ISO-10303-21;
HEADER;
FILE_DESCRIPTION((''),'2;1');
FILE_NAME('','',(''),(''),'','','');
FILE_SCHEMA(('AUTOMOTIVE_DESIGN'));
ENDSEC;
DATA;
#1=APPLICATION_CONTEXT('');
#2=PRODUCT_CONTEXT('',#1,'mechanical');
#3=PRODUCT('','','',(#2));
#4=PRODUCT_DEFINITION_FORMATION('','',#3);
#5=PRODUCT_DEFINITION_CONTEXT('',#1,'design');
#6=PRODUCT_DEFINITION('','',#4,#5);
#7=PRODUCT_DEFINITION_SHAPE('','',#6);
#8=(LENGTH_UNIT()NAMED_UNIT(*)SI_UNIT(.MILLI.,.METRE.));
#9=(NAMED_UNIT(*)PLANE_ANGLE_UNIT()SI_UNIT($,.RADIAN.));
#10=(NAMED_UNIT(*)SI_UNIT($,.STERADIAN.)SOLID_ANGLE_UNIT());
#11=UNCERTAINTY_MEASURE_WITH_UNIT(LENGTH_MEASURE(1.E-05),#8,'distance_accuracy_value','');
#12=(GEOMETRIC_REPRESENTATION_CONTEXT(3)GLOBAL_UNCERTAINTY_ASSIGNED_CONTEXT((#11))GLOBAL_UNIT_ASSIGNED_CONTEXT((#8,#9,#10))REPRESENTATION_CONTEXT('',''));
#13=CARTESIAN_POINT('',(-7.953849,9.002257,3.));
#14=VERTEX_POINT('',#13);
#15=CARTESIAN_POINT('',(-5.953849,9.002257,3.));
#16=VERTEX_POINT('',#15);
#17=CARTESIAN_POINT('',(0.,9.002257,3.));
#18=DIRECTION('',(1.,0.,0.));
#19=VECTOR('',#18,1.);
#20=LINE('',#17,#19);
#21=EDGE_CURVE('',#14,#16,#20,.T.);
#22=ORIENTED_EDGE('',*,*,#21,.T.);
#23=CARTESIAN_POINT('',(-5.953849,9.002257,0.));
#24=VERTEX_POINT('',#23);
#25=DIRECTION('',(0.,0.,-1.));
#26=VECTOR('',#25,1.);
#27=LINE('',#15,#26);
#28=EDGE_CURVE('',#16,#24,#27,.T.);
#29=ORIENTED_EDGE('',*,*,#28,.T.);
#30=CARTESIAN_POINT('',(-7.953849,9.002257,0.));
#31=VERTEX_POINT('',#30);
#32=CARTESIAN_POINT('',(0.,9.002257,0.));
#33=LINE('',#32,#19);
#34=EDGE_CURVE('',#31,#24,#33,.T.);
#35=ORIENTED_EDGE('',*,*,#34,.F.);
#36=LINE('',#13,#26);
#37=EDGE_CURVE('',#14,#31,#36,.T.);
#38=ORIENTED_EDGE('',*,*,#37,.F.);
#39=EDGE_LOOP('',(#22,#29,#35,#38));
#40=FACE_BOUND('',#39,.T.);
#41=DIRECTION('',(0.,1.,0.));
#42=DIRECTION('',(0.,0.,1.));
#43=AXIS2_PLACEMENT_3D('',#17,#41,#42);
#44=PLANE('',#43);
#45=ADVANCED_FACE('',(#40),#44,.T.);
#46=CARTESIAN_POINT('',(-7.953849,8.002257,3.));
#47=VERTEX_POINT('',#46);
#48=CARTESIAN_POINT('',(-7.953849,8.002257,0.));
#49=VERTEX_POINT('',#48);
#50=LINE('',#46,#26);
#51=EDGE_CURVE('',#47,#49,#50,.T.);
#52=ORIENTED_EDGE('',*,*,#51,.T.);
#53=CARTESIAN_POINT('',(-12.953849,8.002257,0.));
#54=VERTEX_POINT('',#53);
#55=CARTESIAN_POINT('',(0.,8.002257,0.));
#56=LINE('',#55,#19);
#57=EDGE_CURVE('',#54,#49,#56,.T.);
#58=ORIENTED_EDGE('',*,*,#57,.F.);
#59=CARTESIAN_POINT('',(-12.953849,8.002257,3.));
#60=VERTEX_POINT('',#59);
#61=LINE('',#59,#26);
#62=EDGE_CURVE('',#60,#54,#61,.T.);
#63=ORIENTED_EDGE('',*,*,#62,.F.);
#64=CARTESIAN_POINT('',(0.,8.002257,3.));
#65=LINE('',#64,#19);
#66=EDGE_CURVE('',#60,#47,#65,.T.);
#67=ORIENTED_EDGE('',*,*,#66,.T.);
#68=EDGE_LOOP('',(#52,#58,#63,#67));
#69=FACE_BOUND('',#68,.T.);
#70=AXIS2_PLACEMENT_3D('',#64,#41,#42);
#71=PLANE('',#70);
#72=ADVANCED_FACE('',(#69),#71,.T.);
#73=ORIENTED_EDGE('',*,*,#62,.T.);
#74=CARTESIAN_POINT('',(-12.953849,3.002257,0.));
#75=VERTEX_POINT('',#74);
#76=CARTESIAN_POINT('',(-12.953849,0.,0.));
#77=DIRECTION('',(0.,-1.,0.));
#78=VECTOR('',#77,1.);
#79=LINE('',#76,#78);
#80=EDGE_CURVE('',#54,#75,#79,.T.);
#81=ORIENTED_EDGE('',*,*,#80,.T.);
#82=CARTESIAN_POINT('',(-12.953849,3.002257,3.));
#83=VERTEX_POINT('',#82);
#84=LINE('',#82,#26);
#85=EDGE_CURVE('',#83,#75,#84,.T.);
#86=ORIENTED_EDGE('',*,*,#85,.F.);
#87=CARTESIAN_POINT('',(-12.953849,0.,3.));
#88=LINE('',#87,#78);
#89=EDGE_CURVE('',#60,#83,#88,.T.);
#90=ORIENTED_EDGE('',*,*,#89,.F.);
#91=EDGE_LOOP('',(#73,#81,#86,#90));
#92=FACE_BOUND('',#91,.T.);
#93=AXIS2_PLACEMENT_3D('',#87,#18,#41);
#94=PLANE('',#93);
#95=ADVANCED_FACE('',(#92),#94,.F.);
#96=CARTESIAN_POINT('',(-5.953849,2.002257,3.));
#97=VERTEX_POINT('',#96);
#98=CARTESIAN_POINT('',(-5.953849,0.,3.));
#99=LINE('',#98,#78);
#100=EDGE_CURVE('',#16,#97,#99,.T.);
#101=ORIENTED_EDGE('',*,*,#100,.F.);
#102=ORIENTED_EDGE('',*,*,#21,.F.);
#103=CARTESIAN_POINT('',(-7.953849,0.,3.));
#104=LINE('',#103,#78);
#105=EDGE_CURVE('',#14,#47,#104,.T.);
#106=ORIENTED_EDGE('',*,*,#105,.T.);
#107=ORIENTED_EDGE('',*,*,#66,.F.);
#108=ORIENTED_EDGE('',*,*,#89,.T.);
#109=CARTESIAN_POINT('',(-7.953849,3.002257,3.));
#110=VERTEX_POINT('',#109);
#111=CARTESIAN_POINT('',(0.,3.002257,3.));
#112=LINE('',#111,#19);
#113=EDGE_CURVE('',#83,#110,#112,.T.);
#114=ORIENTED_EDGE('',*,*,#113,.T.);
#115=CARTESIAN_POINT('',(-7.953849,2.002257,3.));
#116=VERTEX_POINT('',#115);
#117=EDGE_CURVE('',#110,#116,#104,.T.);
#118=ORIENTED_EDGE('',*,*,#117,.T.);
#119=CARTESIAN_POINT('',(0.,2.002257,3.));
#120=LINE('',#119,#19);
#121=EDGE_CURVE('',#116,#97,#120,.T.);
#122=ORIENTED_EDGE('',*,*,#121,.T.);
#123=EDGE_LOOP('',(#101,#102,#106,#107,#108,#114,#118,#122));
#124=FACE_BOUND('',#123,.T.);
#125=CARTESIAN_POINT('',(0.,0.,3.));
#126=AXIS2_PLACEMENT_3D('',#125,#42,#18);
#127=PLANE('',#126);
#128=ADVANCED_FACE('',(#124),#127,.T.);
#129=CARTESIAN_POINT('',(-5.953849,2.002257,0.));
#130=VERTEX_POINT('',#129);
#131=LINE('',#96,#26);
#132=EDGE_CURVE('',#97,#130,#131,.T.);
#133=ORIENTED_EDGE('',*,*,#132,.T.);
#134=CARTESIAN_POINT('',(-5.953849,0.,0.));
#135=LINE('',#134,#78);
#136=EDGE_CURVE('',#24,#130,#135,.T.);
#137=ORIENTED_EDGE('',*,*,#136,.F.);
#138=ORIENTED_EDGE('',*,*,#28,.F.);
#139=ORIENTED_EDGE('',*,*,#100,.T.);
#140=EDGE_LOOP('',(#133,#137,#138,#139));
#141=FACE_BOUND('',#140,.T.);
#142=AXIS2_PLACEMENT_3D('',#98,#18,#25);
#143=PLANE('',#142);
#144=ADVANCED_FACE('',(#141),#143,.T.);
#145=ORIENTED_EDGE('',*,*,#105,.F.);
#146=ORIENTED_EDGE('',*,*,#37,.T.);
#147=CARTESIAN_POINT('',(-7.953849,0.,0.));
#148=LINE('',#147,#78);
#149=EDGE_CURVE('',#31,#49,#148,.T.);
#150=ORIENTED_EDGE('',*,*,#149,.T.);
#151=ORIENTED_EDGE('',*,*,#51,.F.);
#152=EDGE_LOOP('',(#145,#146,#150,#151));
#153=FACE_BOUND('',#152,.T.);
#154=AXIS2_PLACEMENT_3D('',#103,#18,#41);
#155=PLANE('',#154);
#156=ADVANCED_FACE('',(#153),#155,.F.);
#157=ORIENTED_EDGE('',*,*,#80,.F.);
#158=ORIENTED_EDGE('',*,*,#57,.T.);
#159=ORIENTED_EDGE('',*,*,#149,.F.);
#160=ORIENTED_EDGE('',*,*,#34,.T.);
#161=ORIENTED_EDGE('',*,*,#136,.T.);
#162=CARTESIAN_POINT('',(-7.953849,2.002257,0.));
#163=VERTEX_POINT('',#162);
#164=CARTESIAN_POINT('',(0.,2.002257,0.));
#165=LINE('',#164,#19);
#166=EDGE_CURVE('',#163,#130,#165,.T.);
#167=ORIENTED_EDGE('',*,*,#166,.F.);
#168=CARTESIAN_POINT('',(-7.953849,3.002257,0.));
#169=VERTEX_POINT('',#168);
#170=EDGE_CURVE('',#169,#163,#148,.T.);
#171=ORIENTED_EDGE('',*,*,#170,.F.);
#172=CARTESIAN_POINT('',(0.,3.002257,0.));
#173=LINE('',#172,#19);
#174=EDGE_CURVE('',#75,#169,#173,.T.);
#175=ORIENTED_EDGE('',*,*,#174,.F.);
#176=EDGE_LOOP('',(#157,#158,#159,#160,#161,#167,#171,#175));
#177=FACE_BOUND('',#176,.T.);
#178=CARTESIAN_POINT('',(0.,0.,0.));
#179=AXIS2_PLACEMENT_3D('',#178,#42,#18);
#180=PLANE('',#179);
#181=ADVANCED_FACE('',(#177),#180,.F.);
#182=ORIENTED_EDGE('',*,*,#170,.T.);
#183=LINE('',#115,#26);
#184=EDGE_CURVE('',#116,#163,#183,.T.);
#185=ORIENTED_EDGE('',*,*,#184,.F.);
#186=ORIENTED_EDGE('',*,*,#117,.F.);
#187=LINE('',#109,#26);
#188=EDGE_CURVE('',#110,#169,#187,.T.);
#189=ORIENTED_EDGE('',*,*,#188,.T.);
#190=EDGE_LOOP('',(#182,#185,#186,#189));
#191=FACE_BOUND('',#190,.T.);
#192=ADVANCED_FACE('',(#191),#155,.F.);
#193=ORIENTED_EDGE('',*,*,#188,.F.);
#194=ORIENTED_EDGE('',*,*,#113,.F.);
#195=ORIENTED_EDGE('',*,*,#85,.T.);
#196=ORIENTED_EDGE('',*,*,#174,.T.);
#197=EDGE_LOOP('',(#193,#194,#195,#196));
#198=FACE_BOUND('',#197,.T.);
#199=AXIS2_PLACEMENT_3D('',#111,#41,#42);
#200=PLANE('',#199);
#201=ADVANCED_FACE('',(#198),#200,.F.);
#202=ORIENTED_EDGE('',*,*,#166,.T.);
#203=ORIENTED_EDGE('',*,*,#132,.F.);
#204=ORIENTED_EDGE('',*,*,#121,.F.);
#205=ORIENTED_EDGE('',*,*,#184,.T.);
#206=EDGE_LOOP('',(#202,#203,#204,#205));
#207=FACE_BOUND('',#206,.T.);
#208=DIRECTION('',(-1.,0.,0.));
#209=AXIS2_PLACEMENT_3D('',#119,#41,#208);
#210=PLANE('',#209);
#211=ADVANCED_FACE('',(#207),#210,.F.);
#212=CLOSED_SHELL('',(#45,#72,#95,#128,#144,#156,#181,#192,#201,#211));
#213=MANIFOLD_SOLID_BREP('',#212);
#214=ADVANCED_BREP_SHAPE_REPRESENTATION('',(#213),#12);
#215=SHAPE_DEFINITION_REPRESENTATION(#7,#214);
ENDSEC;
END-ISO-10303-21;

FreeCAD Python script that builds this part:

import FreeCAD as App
import Part
import Sketcher

V = App.Vector


def add_polygon(sketch, points):
    """Adds a closed chain of lines whose ends are joined by coincident constraints."""
    first, n = sketch.GeometryCount, len(points)
    for a, b in zip(points, points[1:] + points[:1]):
        sketch.addGeometry(Part.LineSegment(App.Vector(*a, 0), App.Vector(*b, 0)), False)
    for i in range(n):
        sketch.addConstraint(Sketcher.Constraint("Coincident", first + i, 2, first + (i + 1) % n, 1))

doc = App.newDocument("Part")
params = doc.addObject("Spreadsheet::Sheet", "Params")
for row, (alias, value) in enumerate([
    ("sketch1_width", "5 mm"),
    ("sketch1_width2", "2 mm"),
    ("sketch1_height", "1 mm"),
    ("pad1_length", "3 mm"),
], start=1):
    params.set(f"A{row}", alias)
    params.set(f"B{row}", "=" + value)
    params.setAlias(f"B{row}", alias)

body = doc.addObject("PartDesign::Body", "Body")

# Sketch on XY plane
sketch1 = body.newObject("Sketcher::SketchObject", "Sketch")
sketch1.AttachmentSupport = (doc.getObject("XY_Plane"), [""])
sketch1.MapMode = "FlatFace"
add_polygon(sketch1, [(-13, 8), (-13, 3), (-8, 3), (-8, 2), (-6, 2), (-6, 9), (-8, 9), (-8, 8)])  # lines 0-7
sketch1.addConstraint([
    Sketcher.Constraint("Vertical", 0),
    Sketcher.Constraint("Horizontal", 1),
    Sketcher.Constraint("Vertical", 2),
    Sketcher.Constraint("Horizontal", 3),
    Sketcher.Constraint("Vertical", 4),
    Sketcher.Constraint("Horizontal", 5),
    Sketcher.Constraint("Vertical", 6),
    Sketcher.Constraint("Horizontal", 7),
    Sketcher.Constraint("Vertical", 2, 2, 5, 2),
    Sketcher.Constraint("Equal", 7, 0),
    Sketcher.Constraint("Equal", 2, 6),
    Sketcher.Constraint("DistanceX", 1, 1, 1, 2, 5.0),
    Sketcher.Constraint("DistanceX", 3, 1, 3, 2, 2.0),
    Sketcher.Constraint("DistanceY", 2, 2, 2, 1, 1.0),
    Sketcher.Constraint("DistanceX", 0, 2, -1, 1, 12.953849),
    Sketcher.Constraint("DistanceY", -1, 1, 0, 2, 3.002257),
])
sketch1.setExpression("Constraints[19]", "Params.sketch1_width")
sketch1.setExpression("Constraints[20]", "Params.sketch1_width2")
sketch1.setExpression("Constraints[21]", "Params.sketch1_height")
pad1 = body.newObject("PartDesign::Pad", "Pad")
pad1.Profile = sketch1
pad1.setExpression("Length", "Params.pad1_length")

doc.recompute()
